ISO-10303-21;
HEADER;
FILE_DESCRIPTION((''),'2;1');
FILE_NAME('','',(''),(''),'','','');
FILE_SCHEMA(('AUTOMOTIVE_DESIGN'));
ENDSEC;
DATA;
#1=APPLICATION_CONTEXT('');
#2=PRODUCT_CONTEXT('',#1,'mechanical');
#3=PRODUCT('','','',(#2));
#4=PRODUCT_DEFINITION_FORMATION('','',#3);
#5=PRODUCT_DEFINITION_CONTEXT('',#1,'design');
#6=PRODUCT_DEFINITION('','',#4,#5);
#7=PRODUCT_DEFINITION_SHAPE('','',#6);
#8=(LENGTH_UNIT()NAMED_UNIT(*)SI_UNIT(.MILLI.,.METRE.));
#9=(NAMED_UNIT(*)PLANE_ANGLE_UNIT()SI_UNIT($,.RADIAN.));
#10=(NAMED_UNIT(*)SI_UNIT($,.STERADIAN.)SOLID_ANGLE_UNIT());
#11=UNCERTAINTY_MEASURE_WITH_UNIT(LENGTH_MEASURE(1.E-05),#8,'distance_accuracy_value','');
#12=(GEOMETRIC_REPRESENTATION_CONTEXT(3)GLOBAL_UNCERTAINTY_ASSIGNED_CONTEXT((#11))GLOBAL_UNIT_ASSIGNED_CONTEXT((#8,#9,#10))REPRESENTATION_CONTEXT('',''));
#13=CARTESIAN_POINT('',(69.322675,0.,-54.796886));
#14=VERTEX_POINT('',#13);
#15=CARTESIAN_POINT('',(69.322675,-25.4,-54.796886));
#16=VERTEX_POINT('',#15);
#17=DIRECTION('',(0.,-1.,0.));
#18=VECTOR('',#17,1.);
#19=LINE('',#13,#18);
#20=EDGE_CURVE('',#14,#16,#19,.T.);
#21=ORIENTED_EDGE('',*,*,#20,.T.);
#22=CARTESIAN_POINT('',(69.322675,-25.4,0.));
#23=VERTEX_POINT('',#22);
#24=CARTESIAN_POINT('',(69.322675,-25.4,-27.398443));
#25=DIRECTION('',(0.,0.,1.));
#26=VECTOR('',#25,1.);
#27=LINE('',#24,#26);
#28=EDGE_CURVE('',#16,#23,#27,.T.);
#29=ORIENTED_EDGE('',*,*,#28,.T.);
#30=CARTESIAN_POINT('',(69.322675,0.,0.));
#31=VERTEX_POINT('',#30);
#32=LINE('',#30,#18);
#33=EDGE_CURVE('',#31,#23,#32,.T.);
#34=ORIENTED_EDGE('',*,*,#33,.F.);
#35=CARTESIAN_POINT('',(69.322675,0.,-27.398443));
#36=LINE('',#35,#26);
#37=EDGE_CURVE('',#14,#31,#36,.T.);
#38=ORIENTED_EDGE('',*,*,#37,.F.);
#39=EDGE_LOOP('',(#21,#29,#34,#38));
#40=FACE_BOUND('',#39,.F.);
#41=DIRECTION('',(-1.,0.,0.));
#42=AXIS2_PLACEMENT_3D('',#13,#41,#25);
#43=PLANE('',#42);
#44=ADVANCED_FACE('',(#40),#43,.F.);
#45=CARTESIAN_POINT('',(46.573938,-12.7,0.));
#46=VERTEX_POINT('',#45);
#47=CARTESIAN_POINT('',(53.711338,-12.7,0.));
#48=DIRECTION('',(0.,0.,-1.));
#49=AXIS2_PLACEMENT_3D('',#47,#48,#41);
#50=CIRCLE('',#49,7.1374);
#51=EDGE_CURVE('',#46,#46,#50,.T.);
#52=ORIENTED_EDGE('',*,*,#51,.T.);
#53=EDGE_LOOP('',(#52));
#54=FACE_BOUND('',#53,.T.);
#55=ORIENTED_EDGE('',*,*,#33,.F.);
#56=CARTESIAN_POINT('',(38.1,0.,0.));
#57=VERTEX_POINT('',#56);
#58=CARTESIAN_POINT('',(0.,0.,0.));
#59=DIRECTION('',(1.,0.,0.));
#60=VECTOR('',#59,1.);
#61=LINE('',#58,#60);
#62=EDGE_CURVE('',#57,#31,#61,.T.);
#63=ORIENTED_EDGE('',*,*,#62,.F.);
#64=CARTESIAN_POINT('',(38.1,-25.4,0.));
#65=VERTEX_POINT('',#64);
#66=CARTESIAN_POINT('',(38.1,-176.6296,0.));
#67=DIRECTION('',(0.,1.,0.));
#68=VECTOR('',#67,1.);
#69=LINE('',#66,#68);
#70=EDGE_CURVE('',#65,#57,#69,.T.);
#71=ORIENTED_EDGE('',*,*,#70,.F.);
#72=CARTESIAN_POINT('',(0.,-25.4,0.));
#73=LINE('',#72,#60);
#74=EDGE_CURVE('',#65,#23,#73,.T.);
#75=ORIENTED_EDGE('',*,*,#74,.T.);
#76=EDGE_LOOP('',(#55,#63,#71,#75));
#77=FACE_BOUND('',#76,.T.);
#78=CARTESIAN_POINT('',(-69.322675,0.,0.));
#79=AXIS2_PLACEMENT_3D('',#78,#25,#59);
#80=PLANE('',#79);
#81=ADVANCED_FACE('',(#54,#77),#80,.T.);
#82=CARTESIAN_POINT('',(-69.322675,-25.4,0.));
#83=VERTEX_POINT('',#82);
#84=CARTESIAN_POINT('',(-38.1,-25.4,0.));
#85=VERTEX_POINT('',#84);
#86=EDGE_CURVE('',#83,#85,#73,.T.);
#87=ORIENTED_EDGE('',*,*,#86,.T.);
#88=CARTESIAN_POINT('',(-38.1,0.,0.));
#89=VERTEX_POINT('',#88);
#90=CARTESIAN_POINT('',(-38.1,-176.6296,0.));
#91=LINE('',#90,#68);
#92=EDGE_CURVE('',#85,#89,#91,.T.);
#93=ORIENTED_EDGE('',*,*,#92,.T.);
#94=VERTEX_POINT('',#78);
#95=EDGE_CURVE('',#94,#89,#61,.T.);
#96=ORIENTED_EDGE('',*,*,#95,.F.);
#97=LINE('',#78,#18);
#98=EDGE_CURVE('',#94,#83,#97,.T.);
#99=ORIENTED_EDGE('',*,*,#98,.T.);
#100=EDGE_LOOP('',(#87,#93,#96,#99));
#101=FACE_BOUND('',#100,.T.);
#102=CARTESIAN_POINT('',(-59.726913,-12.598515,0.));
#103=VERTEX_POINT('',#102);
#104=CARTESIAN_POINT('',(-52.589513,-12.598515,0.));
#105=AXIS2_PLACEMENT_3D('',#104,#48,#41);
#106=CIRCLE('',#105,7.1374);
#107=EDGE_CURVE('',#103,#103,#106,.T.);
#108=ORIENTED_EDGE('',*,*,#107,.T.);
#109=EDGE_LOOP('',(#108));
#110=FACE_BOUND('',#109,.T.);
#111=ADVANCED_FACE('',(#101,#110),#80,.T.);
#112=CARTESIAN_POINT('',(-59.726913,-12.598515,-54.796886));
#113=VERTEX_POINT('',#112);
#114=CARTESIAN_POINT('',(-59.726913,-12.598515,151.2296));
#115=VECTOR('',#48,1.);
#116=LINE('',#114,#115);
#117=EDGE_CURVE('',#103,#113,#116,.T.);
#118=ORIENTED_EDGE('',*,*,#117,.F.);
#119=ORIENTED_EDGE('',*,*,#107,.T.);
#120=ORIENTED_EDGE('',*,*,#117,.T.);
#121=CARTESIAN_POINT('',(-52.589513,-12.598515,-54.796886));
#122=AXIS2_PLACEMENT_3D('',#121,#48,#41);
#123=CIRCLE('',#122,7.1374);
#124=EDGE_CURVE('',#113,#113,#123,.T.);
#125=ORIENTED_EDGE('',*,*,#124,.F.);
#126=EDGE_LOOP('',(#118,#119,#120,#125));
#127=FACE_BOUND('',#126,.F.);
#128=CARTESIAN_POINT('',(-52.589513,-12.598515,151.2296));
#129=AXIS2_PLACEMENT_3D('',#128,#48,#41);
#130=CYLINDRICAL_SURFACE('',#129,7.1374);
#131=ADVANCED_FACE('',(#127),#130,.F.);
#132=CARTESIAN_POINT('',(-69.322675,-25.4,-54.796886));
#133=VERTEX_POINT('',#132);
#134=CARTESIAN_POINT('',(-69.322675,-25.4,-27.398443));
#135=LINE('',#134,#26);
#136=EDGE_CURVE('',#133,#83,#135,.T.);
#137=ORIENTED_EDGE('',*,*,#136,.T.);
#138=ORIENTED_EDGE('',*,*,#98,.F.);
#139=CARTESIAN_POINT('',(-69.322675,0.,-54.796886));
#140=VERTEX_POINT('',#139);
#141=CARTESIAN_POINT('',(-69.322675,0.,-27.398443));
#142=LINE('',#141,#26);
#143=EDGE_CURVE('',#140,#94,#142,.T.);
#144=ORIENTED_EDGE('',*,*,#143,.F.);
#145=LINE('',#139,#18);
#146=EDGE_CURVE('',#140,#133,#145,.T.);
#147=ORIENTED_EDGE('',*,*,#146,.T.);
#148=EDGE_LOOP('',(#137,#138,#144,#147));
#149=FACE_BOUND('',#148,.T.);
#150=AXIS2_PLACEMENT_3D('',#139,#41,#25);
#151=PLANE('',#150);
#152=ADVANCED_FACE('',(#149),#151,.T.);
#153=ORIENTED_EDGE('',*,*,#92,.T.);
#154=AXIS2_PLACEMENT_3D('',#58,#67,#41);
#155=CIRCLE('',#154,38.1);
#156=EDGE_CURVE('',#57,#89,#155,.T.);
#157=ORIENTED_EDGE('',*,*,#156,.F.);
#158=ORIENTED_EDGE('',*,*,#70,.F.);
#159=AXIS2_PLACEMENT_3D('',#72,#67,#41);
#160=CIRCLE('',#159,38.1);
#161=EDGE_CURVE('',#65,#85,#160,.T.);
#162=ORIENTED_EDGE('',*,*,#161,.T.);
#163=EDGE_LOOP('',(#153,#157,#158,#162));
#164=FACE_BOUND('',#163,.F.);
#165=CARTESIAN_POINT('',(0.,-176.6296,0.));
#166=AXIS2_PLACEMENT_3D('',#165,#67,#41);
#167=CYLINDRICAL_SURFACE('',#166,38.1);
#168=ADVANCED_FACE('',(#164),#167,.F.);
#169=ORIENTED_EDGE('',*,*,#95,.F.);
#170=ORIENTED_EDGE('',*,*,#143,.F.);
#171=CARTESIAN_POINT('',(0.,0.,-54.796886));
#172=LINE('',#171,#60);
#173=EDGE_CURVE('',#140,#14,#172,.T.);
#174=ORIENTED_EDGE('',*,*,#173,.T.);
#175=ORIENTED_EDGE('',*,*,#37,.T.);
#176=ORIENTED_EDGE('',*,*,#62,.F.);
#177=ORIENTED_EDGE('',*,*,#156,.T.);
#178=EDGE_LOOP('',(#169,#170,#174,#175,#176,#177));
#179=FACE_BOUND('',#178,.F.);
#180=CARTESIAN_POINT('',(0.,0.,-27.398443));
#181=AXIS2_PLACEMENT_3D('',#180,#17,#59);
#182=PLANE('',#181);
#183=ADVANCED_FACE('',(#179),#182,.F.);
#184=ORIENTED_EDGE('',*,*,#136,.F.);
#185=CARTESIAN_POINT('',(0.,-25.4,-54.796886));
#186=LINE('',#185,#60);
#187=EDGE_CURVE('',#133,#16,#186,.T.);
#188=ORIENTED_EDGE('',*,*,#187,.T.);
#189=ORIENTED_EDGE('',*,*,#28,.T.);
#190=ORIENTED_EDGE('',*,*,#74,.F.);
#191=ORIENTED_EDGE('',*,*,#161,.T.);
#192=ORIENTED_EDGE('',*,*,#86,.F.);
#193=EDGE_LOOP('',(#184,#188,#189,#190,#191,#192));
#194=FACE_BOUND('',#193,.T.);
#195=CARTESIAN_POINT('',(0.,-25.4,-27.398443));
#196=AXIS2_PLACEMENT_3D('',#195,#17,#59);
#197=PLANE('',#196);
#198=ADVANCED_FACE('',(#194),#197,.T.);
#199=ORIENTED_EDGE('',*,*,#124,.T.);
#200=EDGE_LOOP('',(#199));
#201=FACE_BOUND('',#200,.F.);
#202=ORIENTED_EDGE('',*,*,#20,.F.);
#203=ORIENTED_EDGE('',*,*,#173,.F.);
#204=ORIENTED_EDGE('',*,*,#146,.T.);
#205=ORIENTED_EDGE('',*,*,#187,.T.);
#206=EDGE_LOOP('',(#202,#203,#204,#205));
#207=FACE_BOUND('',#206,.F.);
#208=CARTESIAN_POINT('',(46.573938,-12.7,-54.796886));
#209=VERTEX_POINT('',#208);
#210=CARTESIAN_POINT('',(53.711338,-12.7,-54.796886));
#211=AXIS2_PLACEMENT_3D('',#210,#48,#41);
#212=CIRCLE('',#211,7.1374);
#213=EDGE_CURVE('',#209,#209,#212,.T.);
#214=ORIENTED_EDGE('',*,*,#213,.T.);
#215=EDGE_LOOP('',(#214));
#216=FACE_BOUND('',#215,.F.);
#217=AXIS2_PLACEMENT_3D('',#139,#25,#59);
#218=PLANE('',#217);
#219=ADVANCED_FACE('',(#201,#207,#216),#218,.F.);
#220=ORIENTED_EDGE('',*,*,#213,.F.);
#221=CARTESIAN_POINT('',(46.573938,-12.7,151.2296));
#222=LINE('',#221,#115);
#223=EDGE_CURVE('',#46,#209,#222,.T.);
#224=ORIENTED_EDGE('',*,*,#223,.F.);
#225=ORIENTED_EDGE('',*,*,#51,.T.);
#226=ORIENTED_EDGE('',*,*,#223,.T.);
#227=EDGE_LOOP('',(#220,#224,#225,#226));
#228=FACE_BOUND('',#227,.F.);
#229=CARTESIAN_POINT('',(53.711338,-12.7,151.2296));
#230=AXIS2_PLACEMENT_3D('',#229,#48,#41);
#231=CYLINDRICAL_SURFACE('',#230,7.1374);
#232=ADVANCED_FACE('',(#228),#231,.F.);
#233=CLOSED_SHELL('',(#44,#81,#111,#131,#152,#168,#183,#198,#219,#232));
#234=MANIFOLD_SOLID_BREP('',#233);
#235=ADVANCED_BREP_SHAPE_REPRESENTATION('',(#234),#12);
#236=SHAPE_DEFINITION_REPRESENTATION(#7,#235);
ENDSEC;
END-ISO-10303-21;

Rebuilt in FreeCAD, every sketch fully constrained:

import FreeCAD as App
import Part
import Sketcher

V = App.Vector
Q = App.Units.Quantity

doc = App.newDocument("Part")
body = doc.addObject("PartDesign::Body", "Body")

# Sketch on XZ plane
sketch1 = doc.addObject("Sketcher::SketchObject", "Sketch")
body.addObject(sketch1)
sketch1.AttachmentSupport = (doc.XZ_Plane, [""])
sketch1.MapMode = "FlatFace"
sketch1.addGeometry(Part.LineSegment(V(-69, 0, 0), V(-69, -55, 0)), False)
sketch1.addGeometry(Part.LineSegment(V(-69, -55, 0), V(69, -55, 0)), False)
sketch1.addGeometry(Part.LineSegment(V(69, -55, 0), V(69, 0, 0)), False)
sketch1.addGeometry(Part.LineSegment(V(69, 0, 0), V(-69, 0, 0)), False)
sketch1.addConstraint(Sketcher.Constraint("Coincident", 0, 2, 1, 1))
sketch1.addConstraint(Sketcher.Constraint("Coincident", 1, 2, 2, 1))
sketch1.addConstraint(Sketcher.Constraint("Coincident", 2, 2, 3, 1))
sketch1.addConstraint(Sketcher.Constraint("Coincident", 3, 2, 0, 1))
sketch1.addConstraint(Sketcher.Constraint("Vertical", 0))
sketch1.addConstraint(Sketcher.Constraint("Horizontal", 1))
sketch1.addConstraint(Sketcher.Constraint("Vertical", 2))
sketch1.addConstraint(Sketcher.Constraint("Horizontal", 3))
sketch1.addConstraint(Sketcher.Constraint("Symmetric", 2, 2, 3, 2, -1, 1))
sketch1.addConstraint(Sketcher.Constraint("DistanceX", 1, 1, 1, 2, Q("138.64535 mm")))
sketch1.addConstraint(Sketcher.Constraint("DistanceY", 0, 2, 0, 1, Q("54.796886 mm")))
pad1 = doc.addObject("PartDesign::Pad", "Pad")
body.addObject(pad1)
pad1.Profile = sketch1
pad1.Length = Q("1 in")

# Sketch on XZ plane
sketch2 = doc.addObject("Sketcher::SketchObject", "Sketch001")
body.addObject(sketch2)
sketch2.AttachmentSupport = (doc.XZ_Plane, [""])
sketch2.MapMode = "FlatFace"
sketch2.AttachmentOffset = App.Placement(V(0, 0, 1 * 25.4), App.Rotation())
sketch2.addGeometry(Part.Circle(V(0, 0, 0), V(0, 0, 1), 38), False)
sketch2.addConstraint(Sketcher.Constraint("Coincident", 0, 3, -1, 1))
sketch2.addConstraint(Sketcher.Constraint("Diameter", 0, Q("3 in")))
doc.recompute()
hole = doc.addObject("PartDesign::Hole", "Hole")
body.addObject(hole)
hole.Profile = sketch2
hole.ThreadType = "None"
hole.Diameter = Q("3 in")
hole.DepthType = "ThroughAll"

# Sketch on XY plane
sketch3 = doc.addObject("Sketcher::SketchObject", "Sketch002")
body.addObject(sketch3)
sketch3.AttachmentSupport = (doc.XY_Plane, [""])
sketch3.MapMode = "FlatFace"
sketch3.addGeometry(Part.Circle(V(54, -13, 0), V(0, 0, 1), 7), False)
sketch3.addGeometry(Part.Circle(V(-53, -13, 0), V(0, 0, 1), 7), False)
sketch3.addConstraint(Sketcher.Constraint("Equal", 0, 1))
sketch3.addConstraint(Sketcher.Constraint("Diameter", 0, Q("0.562 in")))
sketch3.addConstraint(Sketcher.Constraint("DistanceY", 0, 3, -1, 1, Q("0.5 in")))
sketch3.addConstraint(Sketcher.Constraint("DistanceX", 1, 3, 0, 3, Q("106.300851 mm")))
sketch3.addConstraint(Sketcher.Constraint("DistanceX", -1, 1, 0, 3, Q("53.711338 mm")))
sketch3.addConstraint(Sketcher.Constraint("DistanceY", 1, 3, -1, 1, Q("12.598515 mm")))
doc.recompute()
hole2 = doc.addObject("PartDesign::Hole", "Hole001")
body.addObject(hole2)
hole2.Profile = sketch3
hole2.ThreadType = "None"
hole2.Diameter = Q("0.562 in")
hole2.DepthType = "ThroughAll"

doc.recompute()
